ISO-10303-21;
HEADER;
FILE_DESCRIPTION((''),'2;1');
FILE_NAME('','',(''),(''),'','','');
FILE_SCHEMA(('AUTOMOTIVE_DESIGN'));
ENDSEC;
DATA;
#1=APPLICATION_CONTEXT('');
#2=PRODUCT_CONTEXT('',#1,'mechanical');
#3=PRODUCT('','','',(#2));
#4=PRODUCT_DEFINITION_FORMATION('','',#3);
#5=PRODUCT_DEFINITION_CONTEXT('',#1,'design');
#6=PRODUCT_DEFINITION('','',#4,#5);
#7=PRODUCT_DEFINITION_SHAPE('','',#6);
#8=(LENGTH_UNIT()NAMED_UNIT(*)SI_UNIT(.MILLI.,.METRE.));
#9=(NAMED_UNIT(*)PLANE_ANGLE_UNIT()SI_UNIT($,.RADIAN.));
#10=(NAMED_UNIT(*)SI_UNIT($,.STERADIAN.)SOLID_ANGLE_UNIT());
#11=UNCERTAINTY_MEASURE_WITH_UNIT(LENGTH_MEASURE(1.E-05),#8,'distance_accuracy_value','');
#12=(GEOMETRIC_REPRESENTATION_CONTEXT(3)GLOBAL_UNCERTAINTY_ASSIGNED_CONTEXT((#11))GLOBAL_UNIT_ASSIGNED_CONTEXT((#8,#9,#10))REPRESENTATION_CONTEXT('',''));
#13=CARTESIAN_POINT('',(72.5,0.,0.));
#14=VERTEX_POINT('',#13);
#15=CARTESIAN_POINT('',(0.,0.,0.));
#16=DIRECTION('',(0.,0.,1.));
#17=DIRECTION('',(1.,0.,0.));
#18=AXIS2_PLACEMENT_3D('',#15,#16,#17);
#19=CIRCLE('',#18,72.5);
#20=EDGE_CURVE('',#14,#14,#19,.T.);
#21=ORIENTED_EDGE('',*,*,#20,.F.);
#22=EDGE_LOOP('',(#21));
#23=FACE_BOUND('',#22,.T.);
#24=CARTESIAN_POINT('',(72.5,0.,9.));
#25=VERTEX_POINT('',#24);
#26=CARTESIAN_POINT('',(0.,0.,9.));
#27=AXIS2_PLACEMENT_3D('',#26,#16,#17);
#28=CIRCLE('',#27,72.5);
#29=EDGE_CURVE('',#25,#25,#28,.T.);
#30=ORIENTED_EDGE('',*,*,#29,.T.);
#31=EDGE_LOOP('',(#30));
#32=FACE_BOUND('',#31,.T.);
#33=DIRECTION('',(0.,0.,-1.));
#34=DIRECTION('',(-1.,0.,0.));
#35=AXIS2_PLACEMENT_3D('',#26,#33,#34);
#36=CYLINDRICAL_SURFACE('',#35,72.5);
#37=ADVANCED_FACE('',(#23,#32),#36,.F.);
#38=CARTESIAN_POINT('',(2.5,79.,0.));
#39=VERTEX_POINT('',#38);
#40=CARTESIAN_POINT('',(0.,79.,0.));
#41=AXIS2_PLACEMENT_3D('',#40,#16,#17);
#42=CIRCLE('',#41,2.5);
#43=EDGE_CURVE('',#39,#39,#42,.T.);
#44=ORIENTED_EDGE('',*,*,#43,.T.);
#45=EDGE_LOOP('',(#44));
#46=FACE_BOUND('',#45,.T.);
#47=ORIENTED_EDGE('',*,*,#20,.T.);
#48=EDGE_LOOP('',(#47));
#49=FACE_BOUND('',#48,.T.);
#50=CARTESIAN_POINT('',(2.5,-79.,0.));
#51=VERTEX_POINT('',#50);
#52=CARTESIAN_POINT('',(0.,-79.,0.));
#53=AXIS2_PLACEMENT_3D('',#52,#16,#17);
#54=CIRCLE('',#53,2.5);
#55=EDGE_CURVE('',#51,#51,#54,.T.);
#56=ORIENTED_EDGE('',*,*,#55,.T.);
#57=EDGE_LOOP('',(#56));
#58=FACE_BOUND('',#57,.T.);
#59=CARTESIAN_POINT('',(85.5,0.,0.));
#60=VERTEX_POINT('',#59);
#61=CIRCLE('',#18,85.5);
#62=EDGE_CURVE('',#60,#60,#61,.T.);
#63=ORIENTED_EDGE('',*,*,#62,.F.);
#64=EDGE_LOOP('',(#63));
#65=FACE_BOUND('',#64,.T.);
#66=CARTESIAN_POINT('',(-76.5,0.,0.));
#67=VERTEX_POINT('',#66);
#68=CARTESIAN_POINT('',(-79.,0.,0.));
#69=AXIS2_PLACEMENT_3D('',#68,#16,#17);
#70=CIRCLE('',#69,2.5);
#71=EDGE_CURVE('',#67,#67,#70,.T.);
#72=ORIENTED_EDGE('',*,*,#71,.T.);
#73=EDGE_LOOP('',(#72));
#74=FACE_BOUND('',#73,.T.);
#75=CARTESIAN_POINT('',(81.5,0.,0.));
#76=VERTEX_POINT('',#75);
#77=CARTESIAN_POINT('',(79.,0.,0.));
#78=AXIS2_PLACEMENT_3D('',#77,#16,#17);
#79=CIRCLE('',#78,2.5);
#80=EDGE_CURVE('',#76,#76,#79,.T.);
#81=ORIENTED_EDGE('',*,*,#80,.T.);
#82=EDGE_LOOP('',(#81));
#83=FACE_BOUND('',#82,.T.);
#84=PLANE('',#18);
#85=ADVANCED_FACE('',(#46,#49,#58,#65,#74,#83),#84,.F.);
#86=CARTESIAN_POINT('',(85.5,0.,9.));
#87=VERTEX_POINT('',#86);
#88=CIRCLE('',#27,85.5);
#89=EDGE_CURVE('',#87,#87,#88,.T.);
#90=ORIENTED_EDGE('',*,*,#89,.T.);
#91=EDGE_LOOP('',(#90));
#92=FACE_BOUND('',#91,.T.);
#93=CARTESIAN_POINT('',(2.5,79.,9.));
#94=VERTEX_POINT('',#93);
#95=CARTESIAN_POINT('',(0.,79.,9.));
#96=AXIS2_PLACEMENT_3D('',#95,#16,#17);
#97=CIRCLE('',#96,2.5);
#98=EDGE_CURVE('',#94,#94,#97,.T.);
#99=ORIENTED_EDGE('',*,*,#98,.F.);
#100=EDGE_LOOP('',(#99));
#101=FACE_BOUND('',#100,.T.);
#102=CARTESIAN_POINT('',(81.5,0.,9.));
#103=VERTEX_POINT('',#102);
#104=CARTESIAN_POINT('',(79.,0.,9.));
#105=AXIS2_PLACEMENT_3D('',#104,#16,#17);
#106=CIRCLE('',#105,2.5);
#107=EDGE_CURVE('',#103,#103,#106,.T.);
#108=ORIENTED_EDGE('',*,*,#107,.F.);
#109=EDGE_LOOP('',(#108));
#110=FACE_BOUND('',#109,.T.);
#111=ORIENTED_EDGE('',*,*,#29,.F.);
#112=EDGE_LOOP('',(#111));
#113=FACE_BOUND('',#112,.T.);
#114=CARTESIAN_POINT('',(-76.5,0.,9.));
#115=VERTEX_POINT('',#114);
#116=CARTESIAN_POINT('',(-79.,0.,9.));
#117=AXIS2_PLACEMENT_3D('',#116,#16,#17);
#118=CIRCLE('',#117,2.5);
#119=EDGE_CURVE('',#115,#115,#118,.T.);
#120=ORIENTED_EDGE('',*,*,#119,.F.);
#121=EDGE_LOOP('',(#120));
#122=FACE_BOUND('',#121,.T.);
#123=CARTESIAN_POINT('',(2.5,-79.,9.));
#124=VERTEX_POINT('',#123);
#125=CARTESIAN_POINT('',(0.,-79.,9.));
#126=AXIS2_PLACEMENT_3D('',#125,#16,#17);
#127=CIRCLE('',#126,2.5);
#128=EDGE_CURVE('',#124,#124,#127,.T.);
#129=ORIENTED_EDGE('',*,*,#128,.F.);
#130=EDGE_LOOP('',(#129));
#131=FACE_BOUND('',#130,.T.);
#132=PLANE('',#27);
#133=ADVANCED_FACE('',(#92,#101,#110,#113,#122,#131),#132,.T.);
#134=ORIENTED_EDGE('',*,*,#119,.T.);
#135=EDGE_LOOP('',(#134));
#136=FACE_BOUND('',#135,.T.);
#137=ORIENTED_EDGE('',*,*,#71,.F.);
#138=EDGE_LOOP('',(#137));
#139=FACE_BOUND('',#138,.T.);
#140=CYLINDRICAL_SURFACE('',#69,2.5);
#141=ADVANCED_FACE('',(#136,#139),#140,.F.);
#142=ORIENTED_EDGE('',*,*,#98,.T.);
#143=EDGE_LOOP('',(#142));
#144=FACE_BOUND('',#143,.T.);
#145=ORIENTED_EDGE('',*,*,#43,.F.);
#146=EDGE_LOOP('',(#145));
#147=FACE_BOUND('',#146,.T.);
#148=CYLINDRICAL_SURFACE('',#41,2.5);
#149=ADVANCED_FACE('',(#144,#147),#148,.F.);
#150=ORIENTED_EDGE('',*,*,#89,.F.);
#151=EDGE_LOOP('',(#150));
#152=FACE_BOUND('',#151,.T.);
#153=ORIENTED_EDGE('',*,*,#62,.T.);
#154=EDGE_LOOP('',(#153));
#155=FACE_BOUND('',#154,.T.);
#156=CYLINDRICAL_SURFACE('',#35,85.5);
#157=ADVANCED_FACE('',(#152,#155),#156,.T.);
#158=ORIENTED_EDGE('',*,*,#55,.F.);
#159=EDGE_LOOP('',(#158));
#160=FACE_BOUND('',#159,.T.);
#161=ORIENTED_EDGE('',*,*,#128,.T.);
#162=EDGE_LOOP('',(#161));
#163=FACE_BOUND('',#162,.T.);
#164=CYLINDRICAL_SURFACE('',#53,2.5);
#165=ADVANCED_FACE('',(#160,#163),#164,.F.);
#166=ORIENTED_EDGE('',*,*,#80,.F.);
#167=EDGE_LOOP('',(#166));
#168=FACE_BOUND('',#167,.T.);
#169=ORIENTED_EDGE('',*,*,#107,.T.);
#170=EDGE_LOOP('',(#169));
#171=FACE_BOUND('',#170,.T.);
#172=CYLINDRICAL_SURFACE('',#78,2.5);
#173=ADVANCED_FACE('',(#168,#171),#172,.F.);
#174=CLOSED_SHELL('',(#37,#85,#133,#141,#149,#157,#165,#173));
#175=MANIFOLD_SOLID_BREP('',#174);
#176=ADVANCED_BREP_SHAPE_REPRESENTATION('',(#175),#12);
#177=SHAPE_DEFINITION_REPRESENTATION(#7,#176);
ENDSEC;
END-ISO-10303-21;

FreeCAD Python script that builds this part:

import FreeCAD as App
import Part
import Sketcher
Q = App.Units.Quantity

doc = App.newDocument("Part")
params = doc.addObject("Spreadsheet::Sheet", "Params")
for row, (alias, value) in enumerate([
    ("sketch1_diameter", "171 mm"),
    ("sketch1_diameter2", "145 mm"),
    ("pad1_length", "9 mm"),
    ("sketch2_diameter", "5 mm"),
], start=1):
    params.set(f"A{row}", alias)
    params.set(f"B{row}", "=" + value)
    params.setAlias(f"B{row}", alias)

body = doc.addObject("PartDesign::Body", "Body")

# Sketch on XY plane
sketch1 = body.newObject("Sketcher::SketchObject", "Sketch")
sketch1.AttachmentSupport = (doc.getObject("XY_Plane"), [""])
sketch1.MapMode = "FlatFace"
sketch1.addGeometry([
    Part.Circle(App.Vector(0, 0, 0), App.Vector(0, 0, 1), 86),
    Part.Circle(App.Vector(0, 0, 0), App.Vector(0, 0, 1), 72),
], False)
sketch1.addConstraint([
    Sketcher.Constraint("Coincident", 0, 3, -1, 1),
    Sketcher.Constraint("Coincident", 1, 3, -1, 1),
    Sketcher.Constraint("Diameter", 0, Q("171 mm")),
    Sketcher.Constraint("Diameter", 1, Q("145 mm")),
])
sketch1.setExpression("Constraints[2]", "Params.sketch1_diameter")
sketch1.setExpression("Constraints[3]", "Params.sketch1_diameter2")
pad1 = body.newObject("PartDesign::Pad", "Pad")
pad1.Profile = sketch1
pad1.setExpression("Length", "Params.pad1_length")

# Sketch on XY plane
sketch2 = body.newObject("Sketcher::SketchObject", "Sketch001")
sketch2.AttachmentSupport = (doc.getObject("XY_Plane"), [""])
sketch2.MapMode = "FlatFace"
sketch2.AttachmentOffset = App.Placement(App.Vector(0, 0, 9), App.Rotation())
sketch2.addGeometry([
    Part.Circle(App.Vector(0, 79, 0), App.Vector(0, 0, 1), 2.5),
    Part.Circle(App.Vector(79, 0, 0), App.Vector(0, 0, 1), 2.5),
    Part.Circle(App.Vector(0, -79, 0), App.Vector(0, 0, 1), 2.5),
    Part.Circle(App.Vector(-79, 0, 0), App.Vector(0, 0, 1), 2.5),
], False)
sketch2.addConstraint([
    Sketcher.Constraint("Equal", 0, 1),
    Sketcher.Constraint("Equal", 1, 2),
    Sketcher.Constraint("Equal", 2, 3),
    Sketcher.Constraint("Symmetric", 0, 3, 2, 3, -1, 1),
    Sketcher.Constraint("Symmetric", 1, 3, 3, 3, -1, 1),
    Sketcher.Constraint("PointOnObject", 0, 3, -2),
    Sketcher.Constraint("PointOnObject", 1, 3, -1),
    Sketcher.Constraint("Diameter", 0, Q("5 mm")),
    Sketcher.Constraint("DistanceY", -1, 1, 0, 3, Q("79 mm")),
    Sketcher.Constraint("DistanceX", -1, 1, 1, 3, Q("79 mm")),
])
sketch2.setExpression("Constraints[7]", "Params.sketch2_diameter")
pocket1 = body.newObject("PartDesign::Pocket", "Pocket")
pocket1.Profile = sketch2
pocket1.Type = "ThroughAll"

doc.recompute()
